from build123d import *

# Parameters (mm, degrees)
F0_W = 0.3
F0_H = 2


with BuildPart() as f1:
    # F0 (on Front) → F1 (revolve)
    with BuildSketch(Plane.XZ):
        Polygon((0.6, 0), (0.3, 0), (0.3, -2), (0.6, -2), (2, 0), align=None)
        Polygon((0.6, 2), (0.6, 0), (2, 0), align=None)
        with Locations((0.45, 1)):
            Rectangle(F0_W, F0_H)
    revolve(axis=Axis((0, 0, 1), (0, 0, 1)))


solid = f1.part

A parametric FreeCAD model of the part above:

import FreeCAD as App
import Part
import Sketcher

V = App.Vector
Q = App.Units.Quantity

doc = App.newDocument("Part")
body = doc.addObject("PartDesign::Body", "Body")

sketch1 = body.newObject("Sketcher::SketchObject", "Sketch")
sketch1.AttachmentSupport = (doc.getObject("XZ_Plane"), [""])
sketch1.MapMode = "FlatFace"
sketch1.addGeometry(Part.LineSegment(V(0.3, -2, 0), V(0.6, -2, 0)), False)
sketch1.addGeometry(Part.LineSegment(V(0.6, -2, 0), V(2, 0, 0)), False)
sketch1.addGeometry(Part.LineSegment(V(2, 0, 0), V(0.6, 2, 0)), False)
sketch1.addGeometry(Part.LineSegment(V(0.6, 2, 0), V(0.3, 2, 0)), False)
sketch1.addGeometry(Part.LineSegment(V(0.3, 2, 0), V(0.3, -2, 0)), False)
sketch1.addConstraint(Sketcher.Constraint("Coincident", 0, 2, 1, 1))
sketch1.addConstraint(Sketcher.Constraint("Coincident", 1, 2, 2, 1))
sketch1.addConstraint(Sketcher.Constraint("Coincident", 2, 2, 3, 1))
sketch1.addConstraint(Sketcher.Constraint("Coincident", 3, 2, 4, 1))
sketch1.addConstraint(Sketcher.Constraint("Coincident", 4, 2, 0, 1))
sketch1.addConstraint(Sketcher.Constraint("Horizontal", 0))
sketch1.addConstraint(Sketcher.Constraint("Horizontal", 3))
sketch1.addConstraint(Sketcher.Constraint("Vertical", 4))
sketch1.addConstraint(Sketcher.Constraint("Symmetric", 0, 2, 2, 2, -1))
sketch1.addConstraint(Sketcher.Constraint("PointOnObject", 1, 2, -1))
sketch1.addConstraint(Sketcher.Constraint("DistanceY", 4, 2, 4, 1, Q("4 mm")))
sketch1.addConstraint(Sketcher.Constraint("DistanceX", 0, 1, 0, 2, Q("0.3 mm")))
sketch1.addConstraint(Sketcher.Constraint("DistanceX", -1, 1, 1, 2, Q("2 mm")))
sketch1.addConstraint(Sketcher.Constraint("DistanceX", -1, 1, 0, 2, Q("0.6 mm")))
revolution = body.newObject("PartDesign::Revolution", "Revolution")
revolution.Profile = sketch1
revolution.ReferenceAxis = (sketch1, ["V_Axis"])
revolution.Angle = 360

doc.recompute()
